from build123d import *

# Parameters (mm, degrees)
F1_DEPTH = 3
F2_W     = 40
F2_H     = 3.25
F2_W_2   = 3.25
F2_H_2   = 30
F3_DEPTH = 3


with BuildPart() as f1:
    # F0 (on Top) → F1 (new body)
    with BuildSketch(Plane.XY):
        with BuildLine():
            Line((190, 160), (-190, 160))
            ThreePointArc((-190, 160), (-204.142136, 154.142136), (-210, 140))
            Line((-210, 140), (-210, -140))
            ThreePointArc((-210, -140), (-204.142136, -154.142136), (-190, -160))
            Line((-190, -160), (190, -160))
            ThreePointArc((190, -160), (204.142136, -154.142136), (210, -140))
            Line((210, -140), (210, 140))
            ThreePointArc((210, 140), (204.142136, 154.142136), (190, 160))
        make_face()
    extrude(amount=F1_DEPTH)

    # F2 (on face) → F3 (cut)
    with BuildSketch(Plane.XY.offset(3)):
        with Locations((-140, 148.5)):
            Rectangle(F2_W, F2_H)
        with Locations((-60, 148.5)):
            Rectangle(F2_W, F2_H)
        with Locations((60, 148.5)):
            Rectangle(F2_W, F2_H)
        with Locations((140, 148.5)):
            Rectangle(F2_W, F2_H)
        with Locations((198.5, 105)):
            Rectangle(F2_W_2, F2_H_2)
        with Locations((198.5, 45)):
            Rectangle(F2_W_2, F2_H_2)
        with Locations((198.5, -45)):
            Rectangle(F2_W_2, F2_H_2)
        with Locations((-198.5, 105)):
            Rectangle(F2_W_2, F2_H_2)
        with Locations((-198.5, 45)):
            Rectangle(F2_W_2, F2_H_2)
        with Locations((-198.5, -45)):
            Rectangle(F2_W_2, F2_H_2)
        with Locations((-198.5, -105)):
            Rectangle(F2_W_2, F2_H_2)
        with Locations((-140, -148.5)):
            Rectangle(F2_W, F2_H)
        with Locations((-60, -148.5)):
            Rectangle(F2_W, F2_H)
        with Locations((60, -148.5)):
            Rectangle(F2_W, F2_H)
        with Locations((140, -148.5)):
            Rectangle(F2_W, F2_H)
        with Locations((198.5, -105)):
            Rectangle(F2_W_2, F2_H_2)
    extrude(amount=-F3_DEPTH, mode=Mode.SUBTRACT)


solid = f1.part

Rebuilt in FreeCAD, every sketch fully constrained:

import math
import FreeCAD as App
import Part
import Sketcher
from FreeCAD import Vector


def add_polygon(sketch, points):
    """Adds a closed chain of lines whose ends are joined by coincident constraints."""
    first, n = sketch.GeometryCount, len(points)
    for a, b in zip(points, points[1:] + points[:1]):
        sketch.addGeometry(Part.LineSegment(App.Vector(*a, 0), App.Vector(*b, 0)), False)
    for i in range(n):
        sketch.addConstraint(Sketcher.Constraint("Coincident", first + i, 2, first + (i + 1) % n, 1))

doc = App.newDocument("Part")
body = doc.addObject("PartDesign::Body", "Body")

# Sketch on XY plane
sketch1 = body.newObject("Sketcher::SketchObject", "Sketch")
sketch1.AttachmentSupport = (doc.getObject("XY_Plane"), [""])
sketch1.MapMode = "FlatFace"
sketch1.addGeometry([
    Part.LineSegment(Vector(190, 160, 0), Vector(-190, 160, 0)),  # 0
    Part.ArcOfCircle(Part.Circle(Vector(-190.000001, 140.000001, 0), Vector(0, 0, 1), 19.999999), math.radians(89.999996), math.radians(180.000004)),  # 1
    Part.LineSegment(Vector(-210, 140, 0), Vector(-210, -140, 0)),  # 2
    Part.ArcOfCircle(Part.Circle(Vector(-190.000001, -140.000001, 0), Vector(0, 0, 1), 19.999999), math.radians(179.999996), math.radians(270.000004)),  # 3
    Part.LineSegment(Vector(-190, -160, 0), Vector(190, -160, 0)),  # 4
    Part.ArcOfCircle(Part.Circle(Vector(190.000001, -140.000001, 0), Vector(0, 0, 1), 19.999999), math.radians(-90.000004), math.radians(0.000004)),  # 5
    Part.LineSegment(Vector(210, -140, 0), Vector(210, 140, 0)),  # 6
    Part.ArcOfCircle(Part.Circle(Vector(190.000001, 140.000001, 0), Vector(0, 0, 1), 19.999999), math.radians(-0.000004), math.radians(90.000004)),  # 7
], False)
sketch1.addConstraint([
    Sketcher.Constraint("Tangent", 0, 2, 1, 1),
    Sketcher.Constraint("Tangent", 1, 2, 2, 1),
    Sketcher.Constraint("Tangent", 2, 2, 3, 1),
    Sketcher.Constraint("Tangent", 3, 2, 4, 1),
    Sketcher.Constraint("Tangent", 4, 2, 5, 1),
    Sketcher.Constraint("Tangent", 5, 2, 6, 1),
    Sketcher.Constraint("Tangent", 6, 2, 7, 1),
    Sketcher.Constraint("Tangent", 7, 2, 0, 1),
    Sketcher.Constraint("Horizontal", 0),
    Sketcher.Constraint("Vertical", 2),
    Sketcher.Constraint("Horizontal", 4),
    Sketcher.Constraint("Vertical", 6),
    Sketcher.Constraint("Equal", 1, 3),
    Sketcher.Constraint("Equal", 3, 5),
    Sketcher.Constraint("Equal", 5, 7),
    Sketcher.Constraint("Symmetric", 1, 3, 5, 3, -1, 1),
    Sketcher.Constraint("Radius", 1, 19.999999),
    Sketcher.Constraint("DistanceX", 0, 2, 0, 1, 380.0),
    Sketcher.Constraint("DistanceY", 2, 2, 2, 1, 280.0),
])
pad1 = body.newObject("PartDesign::Pad", "Pad")
pad1.Profile = sketch1
pad1.Length = 3

# Sketch on XY plane
sketch2 = body.newObject("Sketcher::SketchObject", "Sketch001")
sketch2.AttachmentSupport = (doc.getObject("XY_Plane"), [""])
sketch2.MapMode = "FlatFace"
sketch2.AttachmentOffset = App.Placement(Vector(0, 0, 3), App.Rotation())
add_polygon(sketch2, [(-160, 150.125), (-160, 146.875), (-120, 146.875), (-120, 150.125)])  # lines 0-3
add_polygon(sketch2, [(-80, 150.125), (-80, 146.875), (-40, 146.875), (-40, 150.125)])  # lines 4-7
add_polygon(sketch2, [(40, 150.125), (40, 146.875), (80, 146.875), (80, 150.125)])  # lines 8-11
add_polygon(sketch2, [(120, 150.125), (120, 146.875), (160, 146.875), (160, 150.125)])  # lines 12-15
add_polygon(sketch2, [(196.875, 120), (196.875, 90), (200.125, 90), (200.125, 120)])  # lines 16-19
add_polygon(sketch2, [(196.875, 60), (196.875, 30), (200.125, 30), (200.125, 60)])  # lines 20-23
add_polygon(sketch2, [(196.875, -30), (196.875, -60), (200.125, -60), (200.125, -30)])  # lines 24-27
add_polygon(sketch2, [(-200.125, 120), (-200.125, 90), (-196.875, 90), (-196.875, 120)])  # lines 28-31
add_polygon(sketch2, [(-200.125, 60), (-200.125, 30), (-196.875, 30), (-196.875, 60)])  # lines 32-35
add_polygon(sketch2, [(-200.125, -30), (-200.125, -60), (-196.875, -60), (-196.875, -30)])  # lines 36-39
add_polygon(sketch2, [(-200.125, -90), (-200.125, -120), (-196.875, -120), (-196.875, -90)])  # lines 40-43
add_polygon(sketch2, [(-160, -146.875), (-160, -150.125), (-120, -150.125), (-120, -146.875)])  # lines 44-47
add_polygon(sketch2, [(-80, -146.875), (-80, -150.125), (-40, -150.125), (-40, -146.875)])  # lines 48-51
add_polygon(sketch2, [(40, -146.875), (40, -150.125), (80, -150.125), (80, -146.875)])  # lines 52-55
add_polygon(sketch2, [(120, -146.875), (120, -150.125), (160, -150.125), (160, -146.875)])  # lines 56-59
add_polygon(sketch2, [(196.875, -90), (196.875, -120), (200.125, -120), (200.125, -90)])  # lines 60-63
sketch2.addConstraint([
    Sketcher.Constraint("Vertical", 0),
    Sketcher.Constraint("Horizontal", 1),
    Sketcher.Constraint("Vertical", 2),
    Sketcher.Constraint("Horizontal", 3),
    Sketcher.Constraint("Vertical", 4),
    Sketcher.Constraint("Horizontal", 5),
    Sketcher.Constraint("Vertical", 6),
    Sketcher.Constraint("Horizontal", 7),
    Sketcher.Constraint("Vertical", 8),
    Sketcher.Constraint("Horizontal", 9),
    Sketcher.Constraint("Vertical", 10),
    Sketcher.Constraint("Horizontal", 11),
    Sketcher.Constraint("Vertical", 12),
    Sketcher.Constraint("Horizontal", 13),
    Sketcher.Constraint("Vertical", 14),
    Sketcher.Constraint("Horizontal", 15),
    Sketcher.Constraint("Vertical", 16),
    Sketcher.Constraint("Horizontal", 17),
    Sketcher.Constraint("Vertical", 18),
    Sketcher.Constraint("Horizontal", 19),
    Sketcher.Constraint("Vertical", 20),
    Sketcher.Constraint("Horizontal", 21),
    Sketcher.Constraint("Vertical", 22),
    Sketcher.Constraint("Horizontal", 23),
    Sketcher.Constraint("Vertical", 24),
    Sketcher.Constraint("Horizontal", 25),
    Sketcher.Constraint("Vertical", 26),
    Sketcher.Constraint("Horizontal", 27),
    Sketcher.Constraint("Vertical", 28),
    Sketcher.Constraint("Horizontal", 29),
    Sketcher.Constraint("Vertical", 30),
    Sketcher.Constraint("Horizontal", 31),
    Sketcher.Constraint("Vertical", 32),
    Sketcher.Constraint("Horizontal", 33),
    Sketcher.Constraint("Vertical", 34),
    Sketcher.Constraint("Horizontal", 35),
    Sketcher.Constraint("Vertical", 36),
    Sketcher.Constraint("Horizontal", 37),
    Sketcher.Constraint("Vertical", 38),
    Sketcher.Constraint("Horizontal", 39),
    Sketcher.Constraint("Vertical", 40),
    Sketcher.Constraint("Horizontal", 41),
    Sketcher.Constraint("Vertical", 42),
    Sketcher.Constraint("Horizontal", 43),
    Sketcher.Constraint("Vertical", 44),
    Sketcher.Constraint("Horizontal", 45),
    Sketcher.Constraint("Vertical", 46),
    Sketcher.Constraint("Horizontal", 47),
    Sketcher.Constraint("Vertical", 48),
    Sketcher.Constraint("Horizontal", 49),
    Sketcher.Constraint("Vertical", 50),
    Sketcher.Constraint("Horizontal", 51),
    Sketcher.Constraint("Vertical", 52),
    Sketcher.Constraint("Horizontal", 53),
    Sketcher.Constraint("Vertical", 54),
    Sketcher.Constraint("Horizontal", 55),
    Sketcher.Constraint("Vertical", 56),
    Sketcher.Constraint("Horizontal", 57),
    Sketcher.Constraint("Vertical", 58),
    Sketcher.Constraint("Horizontal", 59),
    Sketcher.Constraint("Vertical", 60),
    Sketcher.Constraint("Horizontal", 61),
    Sketcher.Constraint("Vertical", 62),
    Sketcher.Constraint("Horizontal", 63),
    Sketcher.Constraint("Symmetric", 26, 2, 32, 2, -1, 1),
    Sketcher.Constraint("Symmetric", 24, 2, 34, 2, -1, 1),
    Sketcher.Constraint("Symmetric", 22, 2, 36, 2, -1, 1),
    Sketcher.Constraint("Symmetric", 20, 2, 38, 2, -1, 1),
    Sketcher.Constraint("Symmetric", 18, 2, 40, 2, -1, 1),
    Sketcher.Constraint("Symmetric", 16, 2, 42, 2, -1, 1),
    Sketcher.Constraint("Symmetric", 14, 2, 44, 2, -1, 1),
    Sketcher.Constraint("Symmetric", 12, 2, 46, 2, -1, 1),
    Sketcher.Constraint("Symmetric", 10, 2, 48, 2, -1, 1),
    Sketcher.Constraint("Symmetric", 8, 2, 50, 2, -1, 1),
    Sketcher.Constraint("Symmetric", 6, 2, 52, 2, -1, 1),
    Sketcher.Constraint("Symmetric", 4, 2, 54, 2, -1, 1),
    Sketcher.Constraint("Symmetric", 2, 2, 56, 2, -1, 1),
    Sketcher.Constraint("Symmetric", 0, 2, 58, 2, -1, 1),
    Sketcher.Constraint("Symmetric", 30, 2, 60, 2, -1, 1),
    Sketcher.Constraint("Symmetric", 28, 2, 62, 2, -1, 1),
    Sketcher.Constraint("Symmetric", 5, 2, 8, 2, -2),
    Sketcher.Constraint("Symmetric", 7, 2, 10, 2, -2),
    Sketcher.Constraint("Symmetric", 1, 2, 12, 2, -2),
    Sketcher.Constraint("Symmetric", 3, 2, 14, 2, -2),
    Sketcher.Constraint("Symmetric", 17, 2, 28, 2, -2),
    Sketcher.Constraint("Symmetric", 19, 2, 30, 2, -2),
    Sketcher.Constraint("Symmetric", 21, 2, 32, 2, -2),
    Sketcher.Constraint("Symmetric", 23, 2, 34, 2, -2),
    Sketcher.Constraint("Horizontal", 1, 2, 4, 2),
    Sketcher.Constraint("Horizontal", 3, 2, 6, 2),
    Sketcher.Constraint("Vertical", 19, 2, 20, 2),
    Sketcher.Constraint("Vertical", 18, 2, 21, 2),
    Sketcher.Constraint("Equal", 3, 5),
    Sketcher.Constraint("Equal", 63, 0),
    Sketcher.Constraint("Equal", 18, 20),
    Sketcher.Constraint("DistanceX", 1, 1, 1, 2, 40.0),
    Sketcher.Constraint("DistanceY", 16, 2, 16, 1, 30.0),
    Sketcher.Constraint("DistanceX", 0, 2, -1, 1, 160.0),
    Sketcher.Constraint("DistanceX", 4, 2, -1, 1, 80.0),
    Sketcher.Constraint("DistanceY", -1, 1, 16, 2, 90.0),
    Sketcher.Constraint("DistanceY", -1, 1, 20, 2, 30.0),
    Sketcher.Constraint("DistanceX", 17, 1, 17, 2, 3.25),
    Sketcher.Constraint("DistanceY", -1, 1, 0, 2, 146.875),
    Sketcher.Constraint("DistanceX", -1, 1, 16, 2, 196.875),
])
pocket1 = body.newObject("PartDesign::Pocket", "Pocket")
pocket1.Profile = sketch2
pocket1.Length = 3

doc.recompute()
